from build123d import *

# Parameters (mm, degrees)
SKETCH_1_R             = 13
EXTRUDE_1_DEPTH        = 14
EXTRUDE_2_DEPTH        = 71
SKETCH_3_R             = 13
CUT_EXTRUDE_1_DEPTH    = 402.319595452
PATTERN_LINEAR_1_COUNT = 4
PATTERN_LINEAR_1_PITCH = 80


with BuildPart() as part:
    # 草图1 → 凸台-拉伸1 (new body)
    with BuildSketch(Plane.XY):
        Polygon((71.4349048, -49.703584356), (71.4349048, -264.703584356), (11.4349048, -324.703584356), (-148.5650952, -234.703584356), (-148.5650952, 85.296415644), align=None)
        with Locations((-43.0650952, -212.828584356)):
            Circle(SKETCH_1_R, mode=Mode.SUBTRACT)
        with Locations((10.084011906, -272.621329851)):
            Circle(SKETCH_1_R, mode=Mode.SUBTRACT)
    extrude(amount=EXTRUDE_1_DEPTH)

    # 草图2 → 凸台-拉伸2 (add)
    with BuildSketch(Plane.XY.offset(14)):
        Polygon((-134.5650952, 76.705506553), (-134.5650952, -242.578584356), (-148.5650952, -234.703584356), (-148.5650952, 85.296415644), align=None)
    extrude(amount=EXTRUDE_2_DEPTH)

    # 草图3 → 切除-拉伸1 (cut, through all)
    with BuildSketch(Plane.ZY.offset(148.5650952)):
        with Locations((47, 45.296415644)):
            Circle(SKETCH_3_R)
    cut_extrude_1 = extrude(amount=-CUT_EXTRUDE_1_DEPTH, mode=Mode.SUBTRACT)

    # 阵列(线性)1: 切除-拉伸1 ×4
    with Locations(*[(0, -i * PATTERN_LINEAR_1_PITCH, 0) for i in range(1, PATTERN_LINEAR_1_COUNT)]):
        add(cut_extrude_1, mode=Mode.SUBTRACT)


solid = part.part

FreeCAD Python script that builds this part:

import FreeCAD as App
import Part
import Sketcher

V = App.Vector
Q = App.Units.Quantity


def add_polygon(sketch, points):
    """Adds a closed chain of lines whose ends are joined by coincident constraints."""
    first, n = sketch.GeometryCount, len(points)
    for a, b in zip(points, points[1:] + points[:1]):
        sketch.addGeometry(Part.LineSegment(App.Vector(*a, 0), App.Vector(*b, 0)), False)
    for i in range(n):
        sketch.addConstraint(Sketcher.Constraint("Coincident", first + i, 2, first + (i + 1) % n, 1))

doc = App.newDocument("Part")
body = doc.addObject("PartDesign::Body", "Body")

# Sketch on XY plane
sketch1 = doc.addObject("Sketcher::SketchObject", "Sketch")
body.addObject(sketch1)
sketch1.AttachmentSupport = (doc.XY_Plane, [""])
sketch1.MapMode = "FlatFace"
add_polygon(sketch1, [(71, -265), (71, -50), (-149, 85), (-149, -235), (11, -325)])  # lines 0-4
sketch1.addGeometry(Part.Circle(V(10, -273, 0), V(0, 0, 1), 13), False)  # 5
sketch1.addGeometry(Part.Circle(V(-43, -213, 0), V(0, 0, 1), 13), False)  # 6
sketch1.addConstraint([
    Sketcher.Constraint("Vertical", 0),
    Sketcher.Constraint("Vertical", 2),
    Sketcher.Constraint("Equal", 5, 6),
    Sketcher.Constraint("Diameter", 5, Q("26 mm")),
    Sketcher.Constraint("DistanceY", 0, 1, 0, 2, Q("215 mm")),
    Sketcher.Constraint("DistanceY", 2, 2, 2, 1, Q("320 mm")),
    Sketcher.Constraint("Angle", 4, Q("45 deg")),
    Sketcher.Constraint("DistanceX", 1, 2, 0, 2, Q("220 mm")),
    Sketcher.Constraint("DistanceY", 0, 2, 1, 2, Q("135 mm")),
    Sketcher.Constraint("DistanceX", 2, 2, 3, 2, Q("160 mm")),
    Sketcher.Constraint("DistanceX", 6, 3, 0, 2, Q("114.5 mm")),
    Sketcher.Constraint("DistanceY", 6, 3, 0, 2, Q("163.125 mm")),
    Sketcher.Constraint("DistanceX", -1, 1, 5, 3, Q("10.084012 mm")),
    Sketcher.Constraint("DistanceY", 5, 3, -1, 1, Q("272.62133 mm")),
    Sketcher.Constraint("DistanceX", 6, 3, -1, 1, Q("43.065095 mm")),
    Sketcher.Constraint("DistanceY", 6, 3, -1, 1, Q("212.828584 mm")),
])
pad1 = doc.addObject("PartDesign::Pad", "Pad")
body.addObject(pad1)
pad1.Profile = sketch1
pad1.Length = 14

# Sketch on XY plane
sketch2 = doc.addObject("Sketcher::SketchObject", "Sketch001")
body.addObject(sketch2)
sketch2.AttachmentSupport = (doc.XY_Plane, [""])
sketch2.MapMode = "FlatFace"
sketch2.AttachmentOffset = App.Placement(V(0, 0, 14), App.Rotation())
add_polygon(sketch2, [(-135, -243), (-135, 77), (-149, 85), (-149, -235)])  # lines 0-3
sketch2.addConstraint([
    Sketcher.Constraint("Vertical", 0),
    Sketcher.Constraint("Vertical", 2),
    Sketcher.Constraint("DistanceY", 2, 2, 2, 1, Q("320 mm")),
    Sketcher.Constraint("DistanceX", 1, 2, 0, 2, Q("14 mm")),
    Sketcher.Constraint("DistanceY", 3, 2, 2, 2, Q("7.875 mm")),
    Sketcher.Constraint("DistanceY", 0, 1, 0, 2, Q("319.284091 mm")),
    Sketcher.Constraint("DistanceX", 0, 2, -1, 1, Q("134.565095 mm")),
    Sketcher.Constraint("DistanceY", -1, 1, 0, 2, Q("76.705507 mm")),
])
pad2 = doc.addObject("PartDesign::Pad", "Pad001")
body.addObject(pad2)
pad2.Profile = sketch2
pad2.Length = 71

# Sketch on YZ plane
sketch3 = doc.addObject("Sketcher::SketchObject", "Sketch002")
body.addObject(sketch3)
sketch3.AttachmentSupport = (doc.YZ_Plane, [""])
sketch3.MapMode = "FlatFace"
sketch3.AttachmentOffset = App.Placement(V(0, 0, -148.565095), App.Rotation())
sketch3.addGeometry(Part.Circle(V(45, 47, 0), V(0, 0, 1), 13), False)
sketch3.addConstraint([
    Sketcher.Constraint("Diameter", 0, Q("26 mm")),
    Sketcher.Constraint("DistanceY", -1, 1, 0, 3, Q("47 mm")),
    Sketcher.Constraint("DistanceX", -1, 1, 0, 3, Q("45.296416 mm")),
])
pocket1 = doc.addObject("PartDesign::Pocket", "Pocket")
body.addObject(pocket1)
pocket1.Profile = sketch3
pocket1.Type = "ThroughAll"
pocket1.Reversed = True
doc.recompute()

linearpattern = doc.addObject("PartDesign::LinearPattern", "LinearPattern")
body.addObject(linearpattern)
linearpattern.Originals = [pocket1]
linearpattern.Direction = (doc.Y_Axis, [""])
linearpattern.Mode = "offset"
linearpattern.Offset = 80
linearpattern.Occurrences = 4
linearpattern.Reversed = True
body.Tip = linearpattern

doc.recompute()
